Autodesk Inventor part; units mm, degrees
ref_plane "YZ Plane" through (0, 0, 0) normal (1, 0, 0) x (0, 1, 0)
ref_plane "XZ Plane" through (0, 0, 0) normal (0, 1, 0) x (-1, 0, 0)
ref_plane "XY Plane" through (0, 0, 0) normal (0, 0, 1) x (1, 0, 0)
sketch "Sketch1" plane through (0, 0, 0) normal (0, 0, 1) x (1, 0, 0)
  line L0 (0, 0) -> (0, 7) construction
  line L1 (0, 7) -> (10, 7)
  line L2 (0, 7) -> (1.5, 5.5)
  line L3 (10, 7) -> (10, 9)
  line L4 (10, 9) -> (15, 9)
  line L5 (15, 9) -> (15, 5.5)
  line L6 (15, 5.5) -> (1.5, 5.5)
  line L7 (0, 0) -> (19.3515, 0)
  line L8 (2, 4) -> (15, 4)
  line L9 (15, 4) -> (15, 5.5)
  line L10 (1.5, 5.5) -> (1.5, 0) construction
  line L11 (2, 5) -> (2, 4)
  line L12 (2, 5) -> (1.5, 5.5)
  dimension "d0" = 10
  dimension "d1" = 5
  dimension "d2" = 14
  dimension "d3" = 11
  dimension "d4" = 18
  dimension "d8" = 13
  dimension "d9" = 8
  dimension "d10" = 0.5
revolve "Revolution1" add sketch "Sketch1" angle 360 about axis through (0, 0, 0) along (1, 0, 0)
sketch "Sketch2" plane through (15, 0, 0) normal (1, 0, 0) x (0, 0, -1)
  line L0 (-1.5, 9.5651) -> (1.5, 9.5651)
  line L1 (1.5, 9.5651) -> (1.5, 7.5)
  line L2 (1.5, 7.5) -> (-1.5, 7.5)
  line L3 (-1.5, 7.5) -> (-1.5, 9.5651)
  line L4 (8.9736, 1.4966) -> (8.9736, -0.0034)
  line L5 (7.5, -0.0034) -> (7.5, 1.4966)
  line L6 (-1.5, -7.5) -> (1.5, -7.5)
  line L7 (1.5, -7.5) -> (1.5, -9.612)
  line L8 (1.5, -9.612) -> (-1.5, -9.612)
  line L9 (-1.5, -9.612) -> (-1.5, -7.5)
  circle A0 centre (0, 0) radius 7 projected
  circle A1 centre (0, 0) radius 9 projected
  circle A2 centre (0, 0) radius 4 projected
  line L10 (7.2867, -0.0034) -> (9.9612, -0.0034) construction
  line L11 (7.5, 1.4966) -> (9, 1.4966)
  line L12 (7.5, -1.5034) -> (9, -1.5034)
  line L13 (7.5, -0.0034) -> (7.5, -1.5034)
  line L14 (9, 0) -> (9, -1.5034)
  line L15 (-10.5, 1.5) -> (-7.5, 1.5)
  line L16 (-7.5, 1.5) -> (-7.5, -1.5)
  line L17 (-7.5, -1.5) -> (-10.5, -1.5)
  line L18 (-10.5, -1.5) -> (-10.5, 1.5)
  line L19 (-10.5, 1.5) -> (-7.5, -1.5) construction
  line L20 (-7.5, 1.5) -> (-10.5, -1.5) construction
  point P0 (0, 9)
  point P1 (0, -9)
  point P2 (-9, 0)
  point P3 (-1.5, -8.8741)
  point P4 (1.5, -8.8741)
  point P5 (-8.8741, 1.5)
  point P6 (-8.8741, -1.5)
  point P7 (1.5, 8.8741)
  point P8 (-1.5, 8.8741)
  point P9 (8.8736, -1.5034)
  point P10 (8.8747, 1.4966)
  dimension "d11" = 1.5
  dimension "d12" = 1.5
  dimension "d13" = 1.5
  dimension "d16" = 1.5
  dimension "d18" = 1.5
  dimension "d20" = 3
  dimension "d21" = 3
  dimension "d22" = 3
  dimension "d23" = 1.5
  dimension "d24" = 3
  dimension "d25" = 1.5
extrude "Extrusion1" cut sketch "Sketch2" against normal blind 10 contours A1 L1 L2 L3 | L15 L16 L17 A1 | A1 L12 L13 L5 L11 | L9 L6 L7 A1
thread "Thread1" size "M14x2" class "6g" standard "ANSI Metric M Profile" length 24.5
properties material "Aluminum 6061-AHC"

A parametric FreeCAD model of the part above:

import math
import FreeCAD as App
import Part
import Sketcher
Q = App.Units.Quantity

doc = App.newDocument("Part")
body = doc.addObject("PartDesign::Body", "Body")

# Sketch on XY plane
sketch1 = body.newObject("Sketcher::SketchObject", "Sketch")
sketch1.AttachmentSupport = (doc.getObject("XY_Plane"), [""])
sketch1.MapMode = "FlatFace"
sketch1.addGeometry([
    Part.LineSegment(App.Vector(10, 7, 0), App.Vector(0, 7, 0)),  # 0
    Part.LineSegment(App.Vector(0, 7, 0), App.Vector(2, 5, 0)),  # 1
    Part.LineSegment(App.Vector(2, 5, 0), App.Vector(2, 4, 0)),  # 2
    Part.LineSegment(App.Vector(2, 4, 0), App.Vector(15, 4, 0)),  # 3
    Part.LineSegment(App.Vector(15, 4, 0), App.Vector(15, 9, 0)),  # 4
    Part.LineSegment(App.Vector(15, 9, 0), App.Vector(10, 9, 0)),  # 5
    Part.LineSegment(App.Vector(10, 9, 0), App.Vector(10, 7, 0)),  # 6
], False)
sketch1.addConstraint([
    Sketcher.Constraint("Coincident", 0, 2, 1, 1),
    Sketcher.Constraint("Coincident", 1, 2, 2, 1),
    Sketcher.Constraint("Coincident", 2, 2, 3, 1),
    Sketcher.Constraint("Coincident", 3, 2, 4, 1),
    Sketcher.Constraint("Coincident", 4, 2, 5, 1),
    Sketcher.Constraint("Coincident", 5, 2, 6, 1),
    Sketcher.Constraint("Coincident", 6, 2, 0, 1),
    Sketcher.Constraint("Horizontal", 0),
    Sketcher.Constraint("Vertical", 2),
    Sketcher.Constraint("Horizontal", 3),
    Sketcher.Constraint("Vertical", 4),
    Sketcher.Constraint("Horizontal", 5),
    Sketcher.Constraint("Vertical", 6),
    Sketcher.Constraint("PointOnObject", 0, 2, -2),
    Sketcher.Constraint("Equal", 5, 4),
    Sketcher.Constraint("DistanceX", 0, 2, 0, 1, Q("10 mm")),
    Sketcher.Constraint("DistanceX", 3, 1, 3, 2, Q("13 mm")),
    Sketcher.Constraint("DistanceX", 5, 2, 5, 1, Q("5 mm")),
    Sketcher.Constraint("DistanceY", -1, 1, 1, 2, Q("5 mm")),
    Sketcher.Constraint("DistanceY", 2, 2, 2, 1, Q("1 mm")),
    Sketcher.Constraint("DistanceY", 6, 2, 6, 1, Q("2 mm")),
])
revolution = body.newObject("PartDesign::Revolution", "Revolution")
revolution.Profile = sketch1
revolution.ReferenceAxis = (sketch1, ["H_Axis"])
revolution.Angle = 360

# Sketch on YZ plane
sketch2 = body.newObject("Sketcher::SketchObject", "Sketch001")
sketch2.AttachmentSupport = (doc.getObject("YZ_Plane"), [""])
sketch2.MapMode = "FlatFace"
sketch2.AttachmentOffset = App.Placement(App.Vector(0, 0, 15), App.Rotation())
sketch2.addGeometry([
    Part.ArcOfCircle(Part.Circle(App.Vector(0, 0, 0), App.Vector(0, 0, 1), 9), math.radians(-9.59), math.radians(9.59)),  # 0
    Part.LineSegment(App.Vector(8.9, 1.5, 0), App.Vector(7.5, 1.5, 0)),  # 1
    Part.LineSegment(App.Vector(7.5, 1.5, 0), App.Vector(7.5, -1.5, 0)),  # 2
    Part.LineSegment(App.Vector(7.5, -1.5, 0), App.Vector(8.9, -1.5, 0)),  # 3
    Part.LineSegment(App.Vector(1.5, 7.5, 0), App.Vector(1.5, 8.9, 0)),  # 4
    Part.ArcOfCircle(Part.Circle(App.Vector(0, 0, 0), App.Vector(0, 0, 1), 9), math.radians(80.41), math.radians(99.59)),  # 5
    Part.LineSegment(App.Vector(-1.5, 8.9, 0), App.Vector(-1.5, 7.5, 0)),  # 6
    Part.LineSegment(App.Vector(-1.5, 7.5, 0), App.Vector(1.5, 7.5, 0)),  # 7
    Part.ArcOfCircle(Part.Circle(App.Vector(0, 0, 0), App.Vector(0, 0, 1), 9), math.radians(-99.62), math.radians(-80.43)),  # 8
    Part.LineSegment(App.Vector(1.5, -8.9, 0), App.Vector(1.5, -7.5, 0)),  # 9
    Part.LineSegment(App.Vector(1.5, -7.5, 0), App.Vector(-1.5, -7.5, 0)),  # 10
    Part.LineSegment(App.Vector(-1.5, -7.5, 0), App.Vector(-1.5, -8.9, 0)),  # 11
    Part.LineSegment(App.Vector(-7.5, 1.5, 0), App.Vector(-8.9, 1.5, 0)),  # 12
    Part.ArcOfCircle(Part.Circle(App.Vector(0, 0, 0), App.Vector(0, 0, 1), 9), math.radians(170.41), math.radians(189.59)),  # 13
    Part.LineSegment(App.Vector(-8.9, -1.5, 0), App.Vector(-7.5, -1.5, 0)),  # 14
    Part.LineSegment(App.Vector(-7.5, -1.5, 0), App.Vector(-7.5, 1.5, 0)),  # 15
], False)
sketch2.addConstraint([
    Sketcher.Constraint("Coincident", 0, 2, 1, 1),
    Sketcher.Constraint("Coincident", 1, 2, 2, 1),
    Sketcher.Constraint("Coincident", 2, 2, 3, 1),
    Sketcher.Constraint("Coincident", 3, 2, 0, 1),
    Sketcher.Constraint("Coincident", 4, 2, 5, 1),
    Sketcher.Constraint("Coincident", 5, 2, 6, 1),
    Sketcher.Constraint("Coincident", 6, 2, 7, 1),
    Sketcher.Constraint("Coincident", 7, 2, 4, 1),
    Sketcher.Constraint("Coincident", 8, 2, 9, 1),
    Sketcher.Constraint("Coincident", 9, 2, 10, 1),
    Sketcher.Constraint("Coincident", 10, 2, 11, 1),
    Sketcher.Constraint("Coincident", 11, 2, 8, 1),
    Sketcher.Constraint("Coincident", 12, 2, 13, 1),
    Sketcher.Constraint("Coincident", 13, 2, 14, 1),
    Sketcher.Constraint("Coincident", 14, 2, 15, 1),
    Sketcher.Constraint("Coincident", 15, 2, 12, 1),
    Sketcher.Constraint("Horizontal", 1),
    Sketcher.Constraint("Vertical", 2),
    Sketcher.Constraint("Horizontal", 3),
    Sketcher.Constraint("Vertical", 4),
    Sketcher.Constraint("Vertical", 6),
    Sketcher.Constraint("Horizontal", 7),
    Sketcher.Constraint("Vertical", 9),
    Sketcher.Constraint("Horizontal", 10),
    Sketcher.Constraint("Vertical", 11),
    Sketcher.Constraint("Horizontal", 12),
    Sketcher.Constraint("Horizontal", 14),
    Sketcher.Constraint("Vertical", 15),
    Sketcher.Constraint("Coincident", 0, 3, -1, 1),
    Sketcher.Constraint("Coincident", 5, 3, -1, 1),
    Sketcher.Constraint("Coincident", 8, 3, -1, 1),
    Sketcher.Constraint("Coincident", 13, 3, -1, 1),
    Sketcher.Constraint("Equal", 0, 5),
    Sketcher.Constraint("Equal", 5, 8),
    Sketcher.Constraint("Equal", 8, 13),
    Sketcher.Constraint("Symmetric", 1, 2, 14, 2, -1, 1),
    Sketcher.Constraint("Horizontal", 4, 2, 5, 2),
    Sketcher.Constraint("Horizontal", 1, 2, 12, 2),
    Sketcher.Constraint("Horizontal", 3, 2, 13, 2),
    Sketcher.Constraint("Equal", 7, 10),
    Sketcher.Constraint("Equal", 10, 2),
    Sketcher.Constraint("Equal", 14, 4),
    Sketcher.Constraint("DistanceX", 7, 1, 7, 2, Q("3 mm")),
    Sketcher.Constraint("Radius", 0, Q("9 mm")),
    Sketcher.Constraint("DistanceX", 4, 2, 1, 2, Q("6 mm")),
    Sketcher.Constraint("DistanceY", 9, 2, -1, 1, Q("7.5 mm")),
    Sketcher.Constraint("DistanceY", 9, 1, 9, 2, Q("1.3747 mm")),
])
pocket1 = body.newObject("PartDesign::Pocket", "Pocket")
pocket1.Profile = sketch2
pocket1.Length = 10

doc.recompute()
